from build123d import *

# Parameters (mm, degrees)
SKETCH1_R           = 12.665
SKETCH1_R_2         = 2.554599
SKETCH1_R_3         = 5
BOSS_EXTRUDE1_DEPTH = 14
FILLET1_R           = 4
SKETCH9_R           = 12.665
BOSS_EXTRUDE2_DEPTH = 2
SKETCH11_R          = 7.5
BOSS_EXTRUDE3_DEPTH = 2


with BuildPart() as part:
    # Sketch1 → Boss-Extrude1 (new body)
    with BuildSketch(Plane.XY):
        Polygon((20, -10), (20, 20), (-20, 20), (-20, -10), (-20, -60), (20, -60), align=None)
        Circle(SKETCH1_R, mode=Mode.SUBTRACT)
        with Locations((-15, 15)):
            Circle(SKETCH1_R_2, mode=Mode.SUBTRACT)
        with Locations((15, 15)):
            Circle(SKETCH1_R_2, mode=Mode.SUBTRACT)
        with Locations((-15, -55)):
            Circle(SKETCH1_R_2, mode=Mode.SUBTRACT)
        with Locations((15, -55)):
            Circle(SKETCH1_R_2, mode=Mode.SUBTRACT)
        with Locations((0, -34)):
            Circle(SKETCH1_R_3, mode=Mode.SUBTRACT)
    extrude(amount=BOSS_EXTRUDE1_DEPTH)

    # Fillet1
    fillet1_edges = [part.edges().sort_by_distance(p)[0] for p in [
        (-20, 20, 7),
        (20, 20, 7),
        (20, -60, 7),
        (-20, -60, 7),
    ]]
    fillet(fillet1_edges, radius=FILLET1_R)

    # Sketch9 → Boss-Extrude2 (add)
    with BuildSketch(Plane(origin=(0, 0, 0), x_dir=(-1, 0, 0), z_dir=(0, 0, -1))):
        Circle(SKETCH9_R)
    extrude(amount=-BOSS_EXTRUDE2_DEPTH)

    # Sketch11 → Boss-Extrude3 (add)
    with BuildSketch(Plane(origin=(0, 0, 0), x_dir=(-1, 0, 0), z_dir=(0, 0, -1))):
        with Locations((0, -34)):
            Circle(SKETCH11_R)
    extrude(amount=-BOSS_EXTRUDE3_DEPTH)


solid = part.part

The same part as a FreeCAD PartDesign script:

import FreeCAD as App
import Part
import Sketcher
from FreeCAD import Vector


def edges_at(feature, points):
    """Names of the edges that pass closest to the given points."""
    edges = feature.Shape.Edges
    near = lambda p: min(range(len(edges)), key=lambda i: edges[i].distToShape(Part.Vertex(*p))[0])
    return sorted({f"Edge{near(p) + 1}" for p in points})


def add_polygon(sketch, points):
    """Adds a closed chain of lines whose ends are joined by coincident constraints."""
    first, n = sketch.GeometryCount, len(points)
    for a, b in zip(points, points[1:] + points[:1]):
        sketch.addGeometry(Part.LineSegment(App.Vector(*a, 0), App.Vector(*b, 0)), False)
    for i in range(n):
        sketch.addConstraint(Sketcher.Constraint("Coincident", first + i, 2, first + (i + 1) % n, 1))

doc = App.newDocument("Part")
params = doc.addObject("Spreadsheet::Sheet", "Params")
for row, (alias, value) in enumerate([
    ("sketch1_diameter", "10 mm"),
    ("sketch1_diameter2", "25.33 mm"),
    ("sketch1_width", "40 mm"),
    ("sketch1_height", "80 mm"),
    ("pad1_length", "14 mm"),
    ("fillet_radius", "4 mm"),
    ("sketch2_diameter", "25.33 mm"),
    ("pad2_length", "2 mm"),
    ("sketch3_diameter", "15 mm"),
    ("pad3_length", "2 mm"),
], start=1):
    params.set(f"A{row}", alias)
    params.set(f"B{row}", "=" + value)
    params.setAlias(f"B{row}", alias)

body = doc.addObject("PartDesign::Body", "Body")

# Sketch on XY plane
sketch1 = body.newObject("Sketcher::SketchObject", "Sketch")
sketch1.AttachmentSupport = (doc.getObject("XY_Plane"), [""])
sketch1.MapMode = "FlatFace"
add_polygon(sketch1, [(20, 20), (-20, 20), (-20, -60), (20, -60)])  # lines 0-3
sketch1.addGeometry(Part.Circle(Vector(-15, -55, 0), Vector(0, 0, 1), 2.6), False)  # 4
sketch1.addGeometry(Part.Circle(Vector(15, -55, 0), Vector(0, 0, 1), 2.6), False)  # 5
sketch1.addGeometry(Part.Circle(Vector(0, -34, 0), Vector(0, 0, 1), 5), False)  # 6
sketch1.addGeometry(Part.Circle(Vector(-15, 15, 0), Vector(0, 0, 1), 2.6), False)  # 7
sketch1.addGeometry(Part.Circle(Vector(0, 0, 0), Vector(0, 0, 1), 12.7), False)  # 8
sketch1.addGeometry(Part.Circle(Vector(15, 15, 0), Vector(0, 0, 1), 2.6), False)  # 9
sketch1.addConstraint(Sketcher.Constraint("Horizontal", 0))
sketch1.addConstraint(Sketcher.Constraint("Vertical", 1))
sketch1.addConstraint(Sketcher.Constraint("Horizontal", 2))
sketch1.addConstraint(Sketcher.Constraint("Vertical", 3))
sketch1.addConstraint(Sketcher.Constraint("Coincident", 8, 3, -1, 1))
sketch1.addConstraint(Sketcher.Constraint("Equal", 4, 5))
sketch1.addConstraint(Sketcher.Constraint("Equal", 5, 7))
sketch1.addConstraint(Sketcher.Constraint("Equal", 7, 9))
sketch1.addConstraint(Sketcher.Constraint("Symmetric", 4, 3, 5, 3, -2))
sketch1.addConstraint(Sketcher.Constraint("Symmetric", 7, 3, 9, 3, -2))
sketch1.addConstraint(Sketcher.Constraint("PointOnObject", 6, 3, -2))
sketch1.addConstraint(Sketcher.Constraint("Vertical", 4, 3, 7, 3))
sketch1.addConstraint(Sketcher.Constraint("Diameter", 6, 10.0))
sketch1.addConstraint(Sketcher.Constraint("Diameter", 8, 25.33))
sketch1.addConstraint(Sketcher.Constraint("DistanceX", 0, 2, 0, 1, 40.0))
sketch1.addConstraint(Sketcher.Constraint("DistanceY", 1, 2, 1, 1, 80.0))
sketch1.addConstraint(Sketcher.Constraint("DistanceX", 4, 3, -1, 1, 15.0))
sketch1.addConstraint(Sketcher.Constraint("DistanceY", 4, 3, -1, 1, 55.0))
sketch1.addConstraint(Sketcher.Constraint("DistanceY", 6, 3, -1, 1, 34.0))
sketch1.addConstraint(Sketcher.Constraint("DistanceY", -1, 1, 7, 3, 15.0))
sketch1.addConstraint(Sketcher.Constraint("DistanceX", 0, 2, -1, 1, 20.0))
sketch1.addConstraint(Sketcher.Constraint("DistanceY", -1, 1, 0, 2, 20.0))
sketch1.addConstraint(Sketcher.Constraint("Diameter", 4, 5.109198))
sketch1.setExpression("Constraints[16]", "Params.sketch1_diameter")
sketch1.setExpression("Constraints[17]", "Params.sketch1_diameter2")
sketch1.setExpression("Constraints[18]", "Params.sketch1_width")
sketch1.setExpression("Constraints[19]", "Params.sketch1_height")
pad1 = body.newObject("PartDesign::Pad", "Pad")
pad1.Profile = sketch1
pad1.setExpression("Length", "Params.pad1_length")
doc.recompute()

fillet = body.newObject("PartDesign::Fillet", "Fillet")
fillet.Base = (pad1, edges_at(pad1, [
    (-20, 20, 7),
    (20, 20, 7),
    (20, -60, 7),
    (-20, -60, 7),
]))
fillet.setExpression("Radius", "Params.fillet_radius")

# Sketch on XY plane
sketch2 = body.newObject("Sketcher::SketchObject", "Sketch001")
sketch2.AttachmentSupport = (doc.getObject("XY_Plane"), [""])
sketch2.MapMode = "FlatFace"
sketch2.addGeometry(Part.Circle(Vector(0, 0, 0), Vector(0, 0, 1), 13), False)
sketch2.addConstraint(Sketcher.Constraint("Coincident", 0, 3, -1, 1))
sketch2.addConstraint(Sketcher.Constraint("Diameter", 0, 25.33))
sketch2.setExpression("Constraints[1]", "Params.sketch2_diameter")
pad2 = body.newObject("PartDesign::Pad", "Pad001")
pad2.Profile = sketch2
pad2.setExpression("Length", "Params.pad2_length")

# Sketch on XY plane
sketch3 = body.newObject("Sketcher::SketchObject", "Sketch002")
sketch3.AttachmentSupport = (doc.getObject("XY_Plane"), [""])
sketch3.MapMode = "FlatFace"
sketch3.addGeometry(Part.Circle(Vector(0, -34, 0), Vector(0, 0, 1), 8), False)
sketch3.addConstraint(Sketcher.Constraint("PointOnObject", 0, 3, -2))
sketch3.addConstraint(Sketcher.Constraint("Diameter", 0, 15.0))
sketch3.addConstraint(Sketcher.Constraint("DistanceY", 0, 3, -1, 1, 34.0))
sketch3.setExpression("Constraints[1]", "Params.sketch3_diameter")
pad3 = body.newObject("PartDesign::Pad", "Pad002")
pad3.Profile = sketch3
pad3.setExpression("Length", "Params.pad3_length")

doc.recompute()
